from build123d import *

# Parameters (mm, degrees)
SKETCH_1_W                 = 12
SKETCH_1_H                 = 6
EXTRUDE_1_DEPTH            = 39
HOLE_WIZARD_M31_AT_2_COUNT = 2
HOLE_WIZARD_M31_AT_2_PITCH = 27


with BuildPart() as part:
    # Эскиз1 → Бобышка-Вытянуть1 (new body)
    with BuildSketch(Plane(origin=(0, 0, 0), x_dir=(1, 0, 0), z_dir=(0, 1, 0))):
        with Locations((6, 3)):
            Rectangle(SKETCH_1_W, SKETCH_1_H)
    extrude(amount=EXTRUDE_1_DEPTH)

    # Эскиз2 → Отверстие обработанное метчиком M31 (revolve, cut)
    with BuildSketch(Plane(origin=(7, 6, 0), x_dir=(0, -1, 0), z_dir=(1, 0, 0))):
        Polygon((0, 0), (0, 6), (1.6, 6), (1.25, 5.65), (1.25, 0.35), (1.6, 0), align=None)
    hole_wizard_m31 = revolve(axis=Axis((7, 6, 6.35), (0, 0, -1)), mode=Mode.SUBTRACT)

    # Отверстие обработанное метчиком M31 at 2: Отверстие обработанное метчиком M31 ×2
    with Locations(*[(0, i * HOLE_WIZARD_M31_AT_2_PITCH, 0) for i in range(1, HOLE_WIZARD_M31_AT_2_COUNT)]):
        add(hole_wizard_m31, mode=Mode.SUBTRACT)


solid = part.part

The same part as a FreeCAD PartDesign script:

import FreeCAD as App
import Part
import Sketcher
from FreeCAD import Vector
Q = App.Units.Quantity


def add_polygon(sketch, points):
    """Adds a closed chain of lines whose ends are joined by coincident constraints."""
    first, n = sketch.GeometryCount, len(points)
    for a, b in zip(points, points[1:] + points[:1]):
        sketch.addGeometry(Part.LineSegment(App.Vector(*a, 0), App.Vector(*b, 0)), False)
    for i in range(n):
        sketch.addConstraint(Sketcher.Constraint("Coincident", first + i, 2, first + (i + 1) % n, 1))

doc = App.newDocument("Part")
body = doc.addObject("PartDesign::Body", "Body")

# Sketch on XZ plane
sketch1 = doc.addObject("Sketcher::SketchObject", "Sketch")
body.addObject(sketch1)
sketch1.AttachmentSupport = (doc.XZ_Plane, [""])
sketch1.MapMode = "FlatFace"
add_polygon(sketch1, [(0, -6), (0, 0), (12, 0), (12, -6)])  # lines 0-3
sketch1.addConstraint(Sketcher.Constraint("Vertical", 0))
sketch1.addConstraint(Sketcher.Constraint("Horizontal", 1))
sketch1.addConstraint(Sketcher.Constraint("Vertical", 2))
sketch1.addConstraint(Sketcher.Constraint("Horizontal", 3))
sketch1.addConstraint(Sketcher.Constraint("Coincident", 0, 2, -1, 1))
sketch1.addConstraint(Sketcher.Constraint("DistanceX", 1, 1, 1, 2, Q("12 mm")))
sketch1.addConstraint(Sketcher.Constraint("DistanceY", 0, 1, 0, 2, Q("6 mm")))
pad1 = doc.addObject("PartDesign::Pad", "Pad")
body.addObject(pad1)
pad1.Profile = sketch1
pad1.Length = 39
pad1.Reversed = True

# Sketch on YZ plane
sketch2 = doc.addObject("Sketcher::SketchObject", "Sketch001")
body.addObject(sketch2)
sketch2.AttachmentSupport = (doc.YZ_Plane, [""])
sketch2.MapMode = "FlatFace"
sketch2.AttachmentOffset = App.Placement(Vector(0, 0, 7), App.Rotation())
add_polygon(sketch2, [(6, -6), (6, 0), (4.4, 0), (4.75, -0.35), (4.75, -5.65), (4.4, -6)])  # lines 0-5
sketch2.addGeometry(Part.LineSegment(Vector(6, 0, 0), Vector(6, -6, 0)), True)  # axis
sketch2.addConstraint(Sketcher.Constraint("Vertical", 0))
sketch2.addConstraint(Sketcher.Constraint("Horizontal", 1))
sketch2.addConstraint(Sketcher.Constraint("Vertical", 3))
sketch2.addConstraint(Sketcher.Constraint("Horizontal", 5))
sketch2.addConstraint(Sketcher.Constraint("Vertical", 6))
sketch2.addConstraint(Sketcher.Constraint("Coincident", 6, 1, 0, 2))
sketch2.addConstraint(Sketcher.Constraint("PointOnObject", 0, 2, -1))
sketch2.addConstraint(Sketcher.Constraint("Perpendicular", 2, 4))
sketch2.addConstraint(Sketcher.Constraint("Horizontal", 4, 2, 6, 2))
sketch2.addConstraint(Sketcher.Constraint("Vertical", 1, 2, 4, 2))
sketch2.addConstraint(Sketcher.Constraint("Equal", 2, 4))
sketch2.addConstraint(Sketcher.Constraint("DistanceY", 0, 1, 0, 2, Q("6 mm")))
sketch2.addConstraint(Sketcher.Constraint("DistanceX", 1, 2, 1, 1, Q("1.6 mm")))
sketch2.addConstraint(Sketcher.Constraint("DistanceY", 3, 2, 3, 1, Q("5.3 mm")))
sketch2.addConstraint(Sketcher.Constraint("DistanceX", -1, 1, 0, 2, Q("6 mm")))
groove = doc.addObject("PartDesign::Groove", "Groove")
body.addObject(groove)
groove.Profile = sketch2
groove.ReferenceAxis = (sketch2, ["Axis0"])
groove.Angle = 360
doc.recompute()

linearpattern = doc.addObject("PartDesign::LinearPattern", "LinearPattern")
body.addObject(linearpattern)
linearpattern.Originals = [groove]
linearpattern.Direction = (doc.Y_Axis, [""])
linearpattern.Mode = "offset"
linearpattern.Offset = 27
linearpattern.Occurrences = 2
body.Tip = linearpattern

doc.recompute()
